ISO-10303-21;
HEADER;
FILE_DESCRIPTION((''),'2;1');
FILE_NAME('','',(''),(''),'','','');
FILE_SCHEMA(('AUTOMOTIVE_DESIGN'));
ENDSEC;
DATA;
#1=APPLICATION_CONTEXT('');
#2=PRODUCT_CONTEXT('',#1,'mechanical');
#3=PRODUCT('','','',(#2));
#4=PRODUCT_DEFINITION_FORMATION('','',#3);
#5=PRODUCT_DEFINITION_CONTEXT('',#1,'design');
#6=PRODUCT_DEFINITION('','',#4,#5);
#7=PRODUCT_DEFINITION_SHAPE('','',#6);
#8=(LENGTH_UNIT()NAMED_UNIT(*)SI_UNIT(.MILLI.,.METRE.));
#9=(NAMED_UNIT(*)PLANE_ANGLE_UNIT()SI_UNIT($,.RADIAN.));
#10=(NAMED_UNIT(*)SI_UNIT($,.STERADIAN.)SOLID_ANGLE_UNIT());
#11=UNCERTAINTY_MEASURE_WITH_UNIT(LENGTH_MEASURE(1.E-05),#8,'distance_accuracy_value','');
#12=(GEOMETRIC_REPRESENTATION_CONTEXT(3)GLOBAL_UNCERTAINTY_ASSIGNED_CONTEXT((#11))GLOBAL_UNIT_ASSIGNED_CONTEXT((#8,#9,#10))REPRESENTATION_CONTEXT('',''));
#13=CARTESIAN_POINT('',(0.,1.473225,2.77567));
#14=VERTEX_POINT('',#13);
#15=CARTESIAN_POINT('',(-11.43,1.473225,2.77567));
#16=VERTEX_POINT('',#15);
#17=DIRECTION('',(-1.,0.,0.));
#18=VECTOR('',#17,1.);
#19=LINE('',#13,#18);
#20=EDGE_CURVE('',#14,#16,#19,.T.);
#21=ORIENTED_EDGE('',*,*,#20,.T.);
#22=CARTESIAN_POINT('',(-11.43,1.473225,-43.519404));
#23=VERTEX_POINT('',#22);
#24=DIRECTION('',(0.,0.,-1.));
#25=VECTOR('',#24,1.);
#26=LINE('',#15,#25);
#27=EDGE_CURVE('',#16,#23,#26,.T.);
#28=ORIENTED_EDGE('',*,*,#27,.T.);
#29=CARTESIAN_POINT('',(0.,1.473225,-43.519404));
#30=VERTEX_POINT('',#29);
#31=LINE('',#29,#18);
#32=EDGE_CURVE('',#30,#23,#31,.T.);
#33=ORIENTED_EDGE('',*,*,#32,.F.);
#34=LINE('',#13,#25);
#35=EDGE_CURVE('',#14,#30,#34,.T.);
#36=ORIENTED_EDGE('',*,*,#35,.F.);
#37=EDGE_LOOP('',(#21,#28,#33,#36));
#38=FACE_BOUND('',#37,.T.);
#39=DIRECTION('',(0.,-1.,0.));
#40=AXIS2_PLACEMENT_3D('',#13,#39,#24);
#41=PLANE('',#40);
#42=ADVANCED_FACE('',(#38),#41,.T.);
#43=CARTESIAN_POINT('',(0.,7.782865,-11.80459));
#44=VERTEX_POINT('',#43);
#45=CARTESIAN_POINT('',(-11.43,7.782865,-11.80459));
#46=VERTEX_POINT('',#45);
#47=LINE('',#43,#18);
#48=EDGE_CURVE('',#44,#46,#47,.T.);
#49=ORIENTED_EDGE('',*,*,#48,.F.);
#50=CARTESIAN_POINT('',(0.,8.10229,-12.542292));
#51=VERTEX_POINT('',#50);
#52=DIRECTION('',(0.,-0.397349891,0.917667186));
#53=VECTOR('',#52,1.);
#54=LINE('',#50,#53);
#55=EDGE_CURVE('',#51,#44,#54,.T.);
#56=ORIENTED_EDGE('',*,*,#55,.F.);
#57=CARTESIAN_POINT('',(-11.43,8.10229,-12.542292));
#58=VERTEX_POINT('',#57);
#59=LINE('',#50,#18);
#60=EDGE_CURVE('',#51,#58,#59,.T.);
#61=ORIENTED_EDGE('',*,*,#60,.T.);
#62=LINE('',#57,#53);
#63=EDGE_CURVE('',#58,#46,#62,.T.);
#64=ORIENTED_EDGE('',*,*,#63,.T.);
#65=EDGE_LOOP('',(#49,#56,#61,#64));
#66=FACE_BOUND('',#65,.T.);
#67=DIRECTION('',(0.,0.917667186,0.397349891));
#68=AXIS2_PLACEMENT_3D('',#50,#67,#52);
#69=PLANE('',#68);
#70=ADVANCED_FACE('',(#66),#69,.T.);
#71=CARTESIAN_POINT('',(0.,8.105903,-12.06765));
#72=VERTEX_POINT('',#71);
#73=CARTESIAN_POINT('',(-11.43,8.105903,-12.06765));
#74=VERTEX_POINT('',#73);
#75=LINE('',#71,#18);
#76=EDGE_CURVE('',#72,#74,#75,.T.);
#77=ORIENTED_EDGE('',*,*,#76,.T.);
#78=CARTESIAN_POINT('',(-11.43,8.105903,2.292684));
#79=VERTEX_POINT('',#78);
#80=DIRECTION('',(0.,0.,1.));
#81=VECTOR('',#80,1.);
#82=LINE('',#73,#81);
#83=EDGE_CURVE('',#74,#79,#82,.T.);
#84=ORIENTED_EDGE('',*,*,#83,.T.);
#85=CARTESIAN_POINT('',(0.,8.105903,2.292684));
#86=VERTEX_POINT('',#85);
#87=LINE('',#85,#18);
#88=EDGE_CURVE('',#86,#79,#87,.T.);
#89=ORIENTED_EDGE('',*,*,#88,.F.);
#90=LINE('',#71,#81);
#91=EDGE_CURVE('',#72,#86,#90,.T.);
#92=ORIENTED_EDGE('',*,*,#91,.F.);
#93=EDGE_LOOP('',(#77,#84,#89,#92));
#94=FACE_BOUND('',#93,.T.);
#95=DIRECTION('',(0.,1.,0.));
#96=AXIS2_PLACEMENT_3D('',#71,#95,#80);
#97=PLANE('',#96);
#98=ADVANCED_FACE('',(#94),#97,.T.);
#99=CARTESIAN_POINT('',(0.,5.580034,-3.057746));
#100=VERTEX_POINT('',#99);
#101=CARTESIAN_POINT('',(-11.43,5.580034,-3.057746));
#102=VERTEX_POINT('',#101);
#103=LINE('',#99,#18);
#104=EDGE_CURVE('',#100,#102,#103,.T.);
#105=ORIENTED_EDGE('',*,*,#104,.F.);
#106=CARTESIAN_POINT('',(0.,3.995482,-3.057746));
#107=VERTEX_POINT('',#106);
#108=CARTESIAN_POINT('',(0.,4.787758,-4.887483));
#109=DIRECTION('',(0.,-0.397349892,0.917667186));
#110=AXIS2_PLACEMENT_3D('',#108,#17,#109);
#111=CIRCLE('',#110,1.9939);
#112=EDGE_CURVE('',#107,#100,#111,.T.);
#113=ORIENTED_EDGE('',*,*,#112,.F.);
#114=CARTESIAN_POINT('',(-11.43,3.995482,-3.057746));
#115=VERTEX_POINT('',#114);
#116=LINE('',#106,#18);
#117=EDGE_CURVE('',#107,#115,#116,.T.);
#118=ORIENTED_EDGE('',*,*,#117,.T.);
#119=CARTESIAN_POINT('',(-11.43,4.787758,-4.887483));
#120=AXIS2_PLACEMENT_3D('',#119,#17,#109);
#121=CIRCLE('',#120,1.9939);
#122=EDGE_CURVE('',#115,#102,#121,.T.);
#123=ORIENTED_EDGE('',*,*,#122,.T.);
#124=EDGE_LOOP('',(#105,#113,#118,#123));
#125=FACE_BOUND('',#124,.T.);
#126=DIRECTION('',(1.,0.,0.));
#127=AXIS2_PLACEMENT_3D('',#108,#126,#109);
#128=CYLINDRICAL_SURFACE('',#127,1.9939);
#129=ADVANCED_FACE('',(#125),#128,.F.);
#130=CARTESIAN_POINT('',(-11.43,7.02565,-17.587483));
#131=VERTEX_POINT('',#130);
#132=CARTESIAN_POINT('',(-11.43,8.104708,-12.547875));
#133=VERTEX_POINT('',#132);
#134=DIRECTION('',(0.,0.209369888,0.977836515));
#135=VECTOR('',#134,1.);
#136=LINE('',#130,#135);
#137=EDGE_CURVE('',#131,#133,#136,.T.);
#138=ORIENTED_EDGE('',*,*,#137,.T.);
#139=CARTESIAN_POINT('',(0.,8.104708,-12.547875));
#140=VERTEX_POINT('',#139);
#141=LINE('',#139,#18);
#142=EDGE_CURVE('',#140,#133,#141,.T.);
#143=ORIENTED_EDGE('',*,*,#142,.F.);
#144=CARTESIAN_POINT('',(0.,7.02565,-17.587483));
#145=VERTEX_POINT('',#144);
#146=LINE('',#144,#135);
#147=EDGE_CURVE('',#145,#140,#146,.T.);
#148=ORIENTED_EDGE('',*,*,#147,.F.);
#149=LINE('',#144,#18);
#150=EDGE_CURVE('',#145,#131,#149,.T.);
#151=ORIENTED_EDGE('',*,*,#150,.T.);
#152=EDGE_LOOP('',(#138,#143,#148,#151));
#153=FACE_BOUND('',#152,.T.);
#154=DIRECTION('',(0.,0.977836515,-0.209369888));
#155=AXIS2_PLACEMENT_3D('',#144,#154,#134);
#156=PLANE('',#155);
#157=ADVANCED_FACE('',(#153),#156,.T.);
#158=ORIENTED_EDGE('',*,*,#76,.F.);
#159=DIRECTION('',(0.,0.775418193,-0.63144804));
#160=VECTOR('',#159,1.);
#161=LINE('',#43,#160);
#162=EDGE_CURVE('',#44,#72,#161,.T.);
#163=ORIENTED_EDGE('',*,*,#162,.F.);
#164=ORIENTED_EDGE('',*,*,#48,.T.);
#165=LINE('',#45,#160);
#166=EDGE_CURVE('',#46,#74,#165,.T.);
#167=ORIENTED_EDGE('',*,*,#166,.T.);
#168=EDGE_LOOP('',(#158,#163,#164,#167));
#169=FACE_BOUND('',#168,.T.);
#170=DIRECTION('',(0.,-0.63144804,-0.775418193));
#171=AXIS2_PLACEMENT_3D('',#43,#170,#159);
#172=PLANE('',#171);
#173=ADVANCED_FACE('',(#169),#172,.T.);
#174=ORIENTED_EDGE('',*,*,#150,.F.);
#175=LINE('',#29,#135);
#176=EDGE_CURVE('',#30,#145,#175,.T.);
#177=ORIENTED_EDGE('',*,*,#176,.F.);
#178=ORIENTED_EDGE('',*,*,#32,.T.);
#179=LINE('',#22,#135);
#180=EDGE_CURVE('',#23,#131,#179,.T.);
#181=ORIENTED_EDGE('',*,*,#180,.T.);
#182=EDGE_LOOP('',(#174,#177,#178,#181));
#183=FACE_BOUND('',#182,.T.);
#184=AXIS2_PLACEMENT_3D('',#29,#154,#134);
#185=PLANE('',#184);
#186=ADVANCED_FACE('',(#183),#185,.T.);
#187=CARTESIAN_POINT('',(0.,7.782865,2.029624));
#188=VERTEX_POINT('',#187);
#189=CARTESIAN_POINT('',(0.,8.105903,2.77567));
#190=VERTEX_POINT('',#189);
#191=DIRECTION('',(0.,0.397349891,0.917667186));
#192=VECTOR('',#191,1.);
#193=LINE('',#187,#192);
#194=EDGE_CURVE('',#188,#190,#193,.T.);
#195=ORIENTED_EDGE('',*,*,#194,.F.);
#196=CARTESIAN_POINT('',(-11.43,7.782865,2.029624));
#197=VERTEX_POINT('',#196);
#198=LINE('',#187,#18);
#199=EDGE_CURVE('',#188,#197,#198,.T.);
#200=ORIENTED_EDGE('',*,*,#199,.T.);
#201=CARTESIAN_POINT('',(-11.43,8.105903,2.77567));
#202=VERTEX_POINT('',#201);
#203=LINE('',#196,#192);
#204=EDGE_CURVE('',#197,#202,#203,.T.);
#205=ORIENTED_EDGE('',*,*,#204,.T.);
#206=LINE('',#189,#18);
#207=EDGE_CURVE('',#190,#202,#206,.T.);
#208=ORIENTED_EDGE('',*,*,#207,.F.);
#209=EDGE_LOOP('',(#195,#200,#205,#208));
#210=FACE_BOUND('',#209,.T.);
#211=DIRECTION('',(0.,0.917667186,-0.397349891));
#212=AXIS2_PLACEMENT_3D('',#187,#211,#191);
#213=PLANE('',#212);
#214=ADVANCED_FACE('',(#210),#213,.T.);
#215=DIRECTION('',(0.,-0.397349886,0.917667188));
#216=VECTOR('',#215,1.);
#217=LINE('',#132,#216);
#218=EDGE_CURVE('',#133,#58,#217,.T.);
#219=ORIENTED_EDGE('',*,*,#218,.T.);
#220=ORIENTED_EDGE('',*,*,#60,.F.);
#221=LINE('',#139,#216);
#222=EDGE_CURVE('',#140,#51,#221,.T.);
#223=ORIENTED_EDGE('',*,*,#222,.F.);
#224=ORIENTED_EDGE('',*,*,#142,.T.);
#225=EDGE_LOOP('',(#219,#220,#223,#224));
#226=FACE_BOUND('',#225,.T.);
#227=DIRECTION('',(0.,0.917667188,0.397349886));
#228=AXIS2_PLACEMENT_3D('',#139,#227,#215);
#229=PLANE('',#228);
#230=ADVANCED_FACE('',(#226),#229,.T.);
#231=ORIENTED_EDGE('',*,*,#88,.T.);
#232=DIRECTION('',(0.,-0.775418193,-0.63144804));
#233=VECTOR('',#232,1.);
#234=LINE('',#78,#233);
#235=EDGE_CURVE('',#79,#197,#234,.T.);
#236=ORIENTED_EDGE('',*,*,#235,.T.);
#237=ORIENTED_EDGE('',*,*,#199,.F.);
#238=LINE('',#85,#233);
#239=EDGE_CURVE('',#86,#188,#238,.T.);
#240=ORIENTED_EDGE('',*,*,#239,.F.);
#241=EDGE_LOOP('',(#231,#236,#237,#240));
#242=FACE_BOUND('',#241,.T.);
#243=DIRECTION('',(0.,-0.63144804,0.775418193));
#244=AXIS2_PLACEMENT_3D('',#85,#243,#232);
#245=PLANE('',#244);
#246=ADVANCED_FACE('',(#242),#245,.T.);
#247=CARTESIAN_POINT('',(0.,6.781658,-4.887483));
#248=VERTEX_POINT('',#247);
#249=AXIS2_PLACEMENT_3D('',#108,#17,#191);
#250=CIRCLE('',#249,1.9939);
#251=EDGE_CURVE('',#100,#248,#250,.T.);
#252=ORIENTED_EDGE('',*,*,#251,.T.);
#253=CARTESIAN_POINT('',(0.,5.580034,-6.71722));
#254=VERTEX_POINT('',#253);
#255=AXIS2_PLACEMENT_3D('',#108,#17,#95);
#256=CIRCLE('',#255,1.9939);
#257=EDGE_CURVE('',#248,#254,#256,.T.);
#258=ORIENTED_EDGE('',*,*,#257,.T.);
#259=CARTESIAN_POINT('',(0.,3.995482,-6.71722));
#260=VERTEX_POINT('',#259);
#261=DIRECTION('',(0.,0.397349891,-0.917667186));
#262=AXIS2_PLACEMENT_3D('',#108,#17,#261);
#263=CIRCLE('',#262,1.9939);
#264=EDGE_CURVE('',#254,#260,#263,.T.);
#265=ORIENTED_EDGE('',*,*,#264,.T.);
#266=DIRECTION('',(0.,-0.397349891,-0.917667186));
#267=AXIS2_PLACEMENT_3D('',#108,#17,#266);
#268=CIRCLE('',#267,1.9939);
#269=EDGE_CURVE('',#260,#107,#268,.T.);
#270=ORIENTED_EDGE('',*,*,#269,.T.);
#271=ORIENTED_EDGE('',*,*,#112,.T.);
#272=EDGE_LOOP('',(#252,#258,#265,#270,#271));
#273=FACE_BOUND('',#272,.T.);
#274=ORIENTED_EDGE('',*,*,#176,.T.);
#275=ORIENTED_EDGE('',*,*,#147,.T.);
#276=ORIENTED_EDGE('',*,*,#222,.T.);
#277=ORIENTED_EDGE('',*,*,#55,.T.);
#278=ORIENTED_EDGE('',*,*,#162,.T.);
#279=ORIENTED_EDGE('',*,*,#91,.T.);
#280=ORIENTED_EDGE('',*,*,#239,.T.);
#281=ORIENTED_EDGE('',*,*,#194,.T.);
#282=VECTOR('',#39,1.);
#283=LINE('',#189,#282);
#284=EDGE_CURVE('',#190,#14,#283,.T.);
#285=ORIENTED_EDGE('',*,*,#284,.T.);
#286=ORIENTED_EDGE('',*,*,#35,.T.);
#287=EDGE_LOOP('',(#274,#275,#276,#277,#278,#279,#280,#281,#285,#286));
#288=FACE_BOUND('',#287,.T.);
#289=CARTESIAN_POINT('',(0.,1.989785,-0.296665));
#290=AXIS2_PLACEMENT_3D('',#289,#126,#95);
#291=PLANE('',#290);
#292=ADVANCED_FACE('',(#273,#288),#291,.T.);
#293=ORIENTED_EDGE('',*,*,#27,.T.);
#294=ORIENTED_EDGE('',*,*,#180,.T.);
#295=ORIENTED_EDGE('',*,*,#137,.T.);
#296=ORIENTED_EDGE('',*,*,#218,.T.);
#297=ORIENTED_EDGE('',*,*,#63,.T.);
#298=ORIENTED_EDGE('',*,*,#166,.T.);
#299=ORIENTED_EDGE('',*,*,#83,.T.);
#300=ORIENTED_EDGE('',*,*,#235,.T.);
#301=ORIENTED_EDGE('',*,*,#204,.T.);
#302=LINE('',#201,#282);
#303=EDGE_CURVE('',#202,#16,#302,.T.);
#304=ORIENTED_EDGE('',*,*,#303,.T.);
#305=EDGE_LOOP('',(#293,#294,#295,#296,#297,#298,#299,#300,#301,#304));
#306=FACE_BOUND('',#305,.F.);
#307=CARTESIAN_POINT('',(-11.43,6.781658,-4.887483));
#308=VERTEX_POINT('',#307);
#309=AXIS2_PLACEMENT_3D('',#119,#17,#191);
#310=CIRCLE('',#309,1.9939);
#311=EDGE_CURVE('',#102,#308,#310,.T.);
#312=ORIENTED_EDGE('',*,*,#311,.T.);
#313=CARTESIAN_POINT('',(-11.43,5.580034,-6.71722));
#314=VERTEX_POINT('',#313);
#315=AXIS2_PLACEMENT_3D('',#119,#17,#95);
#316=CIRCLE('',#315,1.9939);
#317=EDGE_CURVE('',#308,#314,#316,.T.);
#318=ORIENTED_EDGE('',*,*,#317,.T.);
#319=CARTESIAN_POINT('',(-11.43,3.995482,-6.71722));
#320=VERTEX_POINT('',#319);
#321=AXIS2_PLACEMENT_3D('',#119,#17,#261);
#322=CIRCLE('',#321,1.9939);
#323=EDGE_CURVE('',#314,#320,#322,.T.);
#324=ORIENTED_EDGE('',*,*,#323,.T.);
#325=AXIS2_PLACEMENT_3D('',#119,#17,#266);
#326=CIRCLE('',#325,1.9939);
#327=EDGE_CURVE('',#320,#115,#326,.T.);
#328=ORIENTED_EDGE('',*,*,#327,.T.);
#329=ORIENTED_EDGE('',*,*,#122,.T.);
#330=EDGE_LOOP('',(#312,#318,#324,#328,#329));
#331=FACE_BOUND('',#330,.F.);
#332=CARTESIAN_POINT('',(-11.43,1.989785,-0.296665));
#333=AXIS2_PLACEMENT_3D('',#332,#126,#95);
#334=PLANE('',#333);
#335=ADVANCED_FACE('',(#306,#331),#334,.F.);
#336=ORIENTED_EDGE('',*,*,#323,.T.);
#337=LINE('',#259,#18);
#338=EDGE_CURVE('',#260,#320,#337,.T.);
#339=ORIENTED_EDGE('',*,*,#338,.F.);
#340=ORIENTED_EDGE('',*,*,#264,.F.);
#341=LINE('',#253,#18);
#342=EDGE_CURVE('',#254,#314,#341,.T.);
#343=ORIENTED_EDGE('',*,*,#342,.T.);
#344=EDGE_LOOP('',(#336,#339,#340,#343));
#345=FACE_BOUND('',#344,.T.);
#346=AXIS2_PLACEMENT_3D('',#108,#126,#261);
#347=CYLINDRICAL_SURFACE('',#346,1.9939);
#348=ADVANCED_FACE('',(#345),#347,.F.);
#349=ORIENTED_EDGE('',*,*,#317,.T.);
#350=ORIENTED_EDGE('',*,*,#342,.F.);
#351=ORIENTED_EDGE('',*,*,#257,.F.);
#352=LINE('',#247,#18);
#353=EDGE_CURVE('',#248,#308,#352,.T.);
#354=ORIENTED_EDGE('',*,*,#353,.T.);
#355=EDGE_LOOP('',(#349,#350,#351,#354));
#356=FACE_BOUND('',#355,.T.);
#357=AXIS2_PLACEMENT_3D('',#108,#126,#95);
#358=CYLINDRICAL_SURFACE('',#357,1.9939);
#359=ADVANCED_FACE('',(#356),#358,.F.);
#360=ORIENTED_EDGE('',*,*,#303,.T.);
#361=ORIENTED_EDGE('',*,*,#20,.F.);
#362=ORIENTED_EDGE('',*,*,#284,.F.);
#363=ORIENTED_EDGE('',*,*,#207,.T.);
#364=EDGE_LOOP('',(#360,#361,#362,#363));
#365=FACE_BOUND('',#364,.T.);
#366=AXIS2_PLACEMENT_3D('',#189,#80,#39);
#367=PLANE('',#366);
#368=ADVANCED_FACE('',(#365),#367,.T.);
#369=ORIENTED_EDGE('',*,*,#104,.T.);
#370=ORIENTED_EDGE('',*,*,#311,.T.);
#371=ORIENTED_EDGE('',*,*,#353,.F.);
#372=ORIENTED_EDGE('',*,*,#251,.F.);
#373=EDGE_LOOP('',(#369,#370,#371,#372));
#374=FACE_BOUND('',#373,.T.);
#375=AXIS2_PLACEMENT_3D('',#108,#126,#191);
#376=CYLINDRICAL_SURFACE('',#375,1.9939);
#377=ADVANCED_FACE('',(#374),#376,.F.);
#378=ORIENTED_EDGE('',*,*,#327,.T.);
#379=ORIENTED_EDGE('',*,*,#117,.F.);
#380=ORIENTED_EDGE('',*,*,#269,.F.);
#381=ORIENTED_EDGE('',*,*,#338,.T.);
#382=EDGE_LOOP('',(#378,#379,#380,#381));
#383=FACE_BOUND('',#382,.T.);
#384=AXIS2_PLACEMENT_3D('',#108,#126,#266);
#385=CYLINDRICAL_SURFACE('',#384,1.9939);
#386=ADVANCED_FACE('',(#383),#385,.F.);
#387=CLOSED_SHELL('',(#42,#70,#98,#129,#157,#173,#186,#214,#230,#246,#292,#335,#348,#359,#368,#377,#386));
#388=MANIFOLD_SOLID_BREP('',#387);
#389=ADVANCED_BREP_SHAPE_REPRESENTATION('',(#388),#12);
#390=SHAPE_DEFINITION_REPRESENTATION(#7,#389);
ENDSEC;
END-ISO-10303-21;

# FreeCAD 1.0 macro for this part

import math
import FreeCAD as App
import Part
import Sketcher
from FreeCAD import Vector
Q = App.Units.Quantity


def add_polygon(sketch, points):
    """Adds a closed chain of lines whose ends are joined by coincident constraints."""
    first, n = sketch.GeometryCount, len(points)
    for a, b in zip(points, points[1:] + points[:1]):
        sketch.addGeometry(Part.LineSegment(App.Vector(*a, 0), App.Vector(*b, 0)), False)
    for i in range(n):
        sketch.addConstraint(Sketcher.Constraint("Coincident", first + i, 2, first + (i + 1) % n, 1))

doc = App.newDocument("Part")
body = doc.addObject("PartDesign::Body", "Body")

sketch1 = body.newObject("Sketcher::SketchObject", "Sketch")
sketch1.AttachmentSupport = (doc.getObject("YZ_Plane"), [""])
sketch1.MapMode = "FlatFace"
add_polygon(sketch1, [(8.105903, 2.292684), (7.782865, 2.029624), (8.105903, 2.77567), (1.473225, 2.77567), (1.473225, -43.519404), (7.02565, -17.587483), (8.104708, -12.547875), (8.10229, -12.542292), (7.782865, -11.80459), (8.105903, -12.06765)])
sketch1.addGeometry(Part.ArcOfCircle(Part.Circle(Vector(4.787758, -4.887483, 0), Vector(0, 0, 1), 1.9939), math.radians(113.412612), math.radians(246.587388)), False)
sketch1.addGeometry(Part.ArcOfCircle(Part.Circle(Vector(4.787758, -4.887483, 0), Vector(0, 0, 1), 1.9939), math.radians(66.587388), math.radians(113.412612)), False)
sketch1.addGeometry(Part.ArcOfCircle(Part.Circle(Vector(4.787758, -4.887483, 0), Vector(0, 0, 1), 1.9939), math.radians(0), math.radians(66.587388)), False)
sketch1.addGeometry(Part.ArcOfCircle(Part.Circle(Vector(4.787758, -4.887483, 0), Vector(0, 0, 1), 1.9939), math.radians(-66.587388), math.radians(0)), False)
sketch1.addGeometry(Part.ArcOfCircle(Part.Circle(Vector(4.787758, -4.887483, 0), Vector(0, 0, 1), 1.9939), math.radians(-113.412612), math.radians(-66.587388)), False)
sketch1.addConstraint([
    Sketcher.Constraint("Tangent", 10, 1, 11, 2),
    Sketcher.Constraint("Tangent", 11, 1, 12, 2),
    Sketcher.Constraint("Tangent", 12, 1, 13, 2),
    Sketcher.Constraint("Tangent", 13, 1, 14, 2),
    Sketcher.Constraint("Tangent", 14, 1, 10, 2),
    Sketcher.Constraint("Horizontal", 2),
    Sketcher.Constraint("Vertical", 3),
    Sketcher.Constraint("Vertical", 9),
    Sketcher.Constraint("Coincident", 12, 3, 10, 3),
    Sketcher.Constraint("Parallel", 4, 5),
    Sketcher.Constraint("Parallel", 6, 7),
    Sketcher.Constraint("Horizontal", 10, 1, 11, 1),
    Sketcher.Constraint("Horizontal", 14, 3, 12, 1),
    Sketcher.Constraint("Horizontal", 13, 1, 14, 1),
    Sketcher.Constraint("Vertical", 0, 2, 7, 2),
    Sketcher.Constraint("Vertical", 1, 2, 8, 2),
    Sketcher.Constraint("Vertical", 11, 1, 13, 1),
    Sketcher.Constraint("Equal", 0, 8),
    Sketcher.Constraint("Radius", 10, Q("0.0785 in")),
    Sketcher.Constraint("DistanceY", 4, 2, 10, 3, Q("0.5 in")),
    Sketcher.Constraint("Distance", 0, 0.416598),
    Sketcher.Constraint("Distance", 1, 0.812981),
    Sketcher.Constraint("Distance", 4, 26.51969),
    Sketcher.Constraint("Distance", 7, 0.803889),
    Sketcher.Constraint("DistanceX", 2, 2, 2, 1, 6.632678),
    Sketcher.Constraint("DistanceY", 3, 2, 3, 1, 46.295074),
    Sketcher.Constraint("DistanceY", 9, 1, 9, 2, 14.360334),
    Sketcher.Constraint("DistanceY", -1, 1, 1, 2, 2.77567),
    Sketcher.Constraint("DistanceX", -1, 1, 4, 2, 7.02565),
    Sketcher.Constraint("DistanceX", -1, 1, 6, 2, 8.10229),
    Sketcher.Constraint("DistanceY", 7, 2, -1, 1, 11.80459),
    Sketcher.Constraint("DistanceX", -1, 1, 10, 1, 3.995482),
    Sketcher.Constraint("DistanceY", 13, 1, -1, 1, 6.71722),
    Sketcher.Constraint("DistanceY", 3, 2, 10, 3, 38.631921),
])
pad1 = body.newObject("PartDesign::Pad", "Pad")
pad1.Profile = sketch1
pad1.Length = Q("0.45 in")
pad1.Reversed = True

doc.recompute()
